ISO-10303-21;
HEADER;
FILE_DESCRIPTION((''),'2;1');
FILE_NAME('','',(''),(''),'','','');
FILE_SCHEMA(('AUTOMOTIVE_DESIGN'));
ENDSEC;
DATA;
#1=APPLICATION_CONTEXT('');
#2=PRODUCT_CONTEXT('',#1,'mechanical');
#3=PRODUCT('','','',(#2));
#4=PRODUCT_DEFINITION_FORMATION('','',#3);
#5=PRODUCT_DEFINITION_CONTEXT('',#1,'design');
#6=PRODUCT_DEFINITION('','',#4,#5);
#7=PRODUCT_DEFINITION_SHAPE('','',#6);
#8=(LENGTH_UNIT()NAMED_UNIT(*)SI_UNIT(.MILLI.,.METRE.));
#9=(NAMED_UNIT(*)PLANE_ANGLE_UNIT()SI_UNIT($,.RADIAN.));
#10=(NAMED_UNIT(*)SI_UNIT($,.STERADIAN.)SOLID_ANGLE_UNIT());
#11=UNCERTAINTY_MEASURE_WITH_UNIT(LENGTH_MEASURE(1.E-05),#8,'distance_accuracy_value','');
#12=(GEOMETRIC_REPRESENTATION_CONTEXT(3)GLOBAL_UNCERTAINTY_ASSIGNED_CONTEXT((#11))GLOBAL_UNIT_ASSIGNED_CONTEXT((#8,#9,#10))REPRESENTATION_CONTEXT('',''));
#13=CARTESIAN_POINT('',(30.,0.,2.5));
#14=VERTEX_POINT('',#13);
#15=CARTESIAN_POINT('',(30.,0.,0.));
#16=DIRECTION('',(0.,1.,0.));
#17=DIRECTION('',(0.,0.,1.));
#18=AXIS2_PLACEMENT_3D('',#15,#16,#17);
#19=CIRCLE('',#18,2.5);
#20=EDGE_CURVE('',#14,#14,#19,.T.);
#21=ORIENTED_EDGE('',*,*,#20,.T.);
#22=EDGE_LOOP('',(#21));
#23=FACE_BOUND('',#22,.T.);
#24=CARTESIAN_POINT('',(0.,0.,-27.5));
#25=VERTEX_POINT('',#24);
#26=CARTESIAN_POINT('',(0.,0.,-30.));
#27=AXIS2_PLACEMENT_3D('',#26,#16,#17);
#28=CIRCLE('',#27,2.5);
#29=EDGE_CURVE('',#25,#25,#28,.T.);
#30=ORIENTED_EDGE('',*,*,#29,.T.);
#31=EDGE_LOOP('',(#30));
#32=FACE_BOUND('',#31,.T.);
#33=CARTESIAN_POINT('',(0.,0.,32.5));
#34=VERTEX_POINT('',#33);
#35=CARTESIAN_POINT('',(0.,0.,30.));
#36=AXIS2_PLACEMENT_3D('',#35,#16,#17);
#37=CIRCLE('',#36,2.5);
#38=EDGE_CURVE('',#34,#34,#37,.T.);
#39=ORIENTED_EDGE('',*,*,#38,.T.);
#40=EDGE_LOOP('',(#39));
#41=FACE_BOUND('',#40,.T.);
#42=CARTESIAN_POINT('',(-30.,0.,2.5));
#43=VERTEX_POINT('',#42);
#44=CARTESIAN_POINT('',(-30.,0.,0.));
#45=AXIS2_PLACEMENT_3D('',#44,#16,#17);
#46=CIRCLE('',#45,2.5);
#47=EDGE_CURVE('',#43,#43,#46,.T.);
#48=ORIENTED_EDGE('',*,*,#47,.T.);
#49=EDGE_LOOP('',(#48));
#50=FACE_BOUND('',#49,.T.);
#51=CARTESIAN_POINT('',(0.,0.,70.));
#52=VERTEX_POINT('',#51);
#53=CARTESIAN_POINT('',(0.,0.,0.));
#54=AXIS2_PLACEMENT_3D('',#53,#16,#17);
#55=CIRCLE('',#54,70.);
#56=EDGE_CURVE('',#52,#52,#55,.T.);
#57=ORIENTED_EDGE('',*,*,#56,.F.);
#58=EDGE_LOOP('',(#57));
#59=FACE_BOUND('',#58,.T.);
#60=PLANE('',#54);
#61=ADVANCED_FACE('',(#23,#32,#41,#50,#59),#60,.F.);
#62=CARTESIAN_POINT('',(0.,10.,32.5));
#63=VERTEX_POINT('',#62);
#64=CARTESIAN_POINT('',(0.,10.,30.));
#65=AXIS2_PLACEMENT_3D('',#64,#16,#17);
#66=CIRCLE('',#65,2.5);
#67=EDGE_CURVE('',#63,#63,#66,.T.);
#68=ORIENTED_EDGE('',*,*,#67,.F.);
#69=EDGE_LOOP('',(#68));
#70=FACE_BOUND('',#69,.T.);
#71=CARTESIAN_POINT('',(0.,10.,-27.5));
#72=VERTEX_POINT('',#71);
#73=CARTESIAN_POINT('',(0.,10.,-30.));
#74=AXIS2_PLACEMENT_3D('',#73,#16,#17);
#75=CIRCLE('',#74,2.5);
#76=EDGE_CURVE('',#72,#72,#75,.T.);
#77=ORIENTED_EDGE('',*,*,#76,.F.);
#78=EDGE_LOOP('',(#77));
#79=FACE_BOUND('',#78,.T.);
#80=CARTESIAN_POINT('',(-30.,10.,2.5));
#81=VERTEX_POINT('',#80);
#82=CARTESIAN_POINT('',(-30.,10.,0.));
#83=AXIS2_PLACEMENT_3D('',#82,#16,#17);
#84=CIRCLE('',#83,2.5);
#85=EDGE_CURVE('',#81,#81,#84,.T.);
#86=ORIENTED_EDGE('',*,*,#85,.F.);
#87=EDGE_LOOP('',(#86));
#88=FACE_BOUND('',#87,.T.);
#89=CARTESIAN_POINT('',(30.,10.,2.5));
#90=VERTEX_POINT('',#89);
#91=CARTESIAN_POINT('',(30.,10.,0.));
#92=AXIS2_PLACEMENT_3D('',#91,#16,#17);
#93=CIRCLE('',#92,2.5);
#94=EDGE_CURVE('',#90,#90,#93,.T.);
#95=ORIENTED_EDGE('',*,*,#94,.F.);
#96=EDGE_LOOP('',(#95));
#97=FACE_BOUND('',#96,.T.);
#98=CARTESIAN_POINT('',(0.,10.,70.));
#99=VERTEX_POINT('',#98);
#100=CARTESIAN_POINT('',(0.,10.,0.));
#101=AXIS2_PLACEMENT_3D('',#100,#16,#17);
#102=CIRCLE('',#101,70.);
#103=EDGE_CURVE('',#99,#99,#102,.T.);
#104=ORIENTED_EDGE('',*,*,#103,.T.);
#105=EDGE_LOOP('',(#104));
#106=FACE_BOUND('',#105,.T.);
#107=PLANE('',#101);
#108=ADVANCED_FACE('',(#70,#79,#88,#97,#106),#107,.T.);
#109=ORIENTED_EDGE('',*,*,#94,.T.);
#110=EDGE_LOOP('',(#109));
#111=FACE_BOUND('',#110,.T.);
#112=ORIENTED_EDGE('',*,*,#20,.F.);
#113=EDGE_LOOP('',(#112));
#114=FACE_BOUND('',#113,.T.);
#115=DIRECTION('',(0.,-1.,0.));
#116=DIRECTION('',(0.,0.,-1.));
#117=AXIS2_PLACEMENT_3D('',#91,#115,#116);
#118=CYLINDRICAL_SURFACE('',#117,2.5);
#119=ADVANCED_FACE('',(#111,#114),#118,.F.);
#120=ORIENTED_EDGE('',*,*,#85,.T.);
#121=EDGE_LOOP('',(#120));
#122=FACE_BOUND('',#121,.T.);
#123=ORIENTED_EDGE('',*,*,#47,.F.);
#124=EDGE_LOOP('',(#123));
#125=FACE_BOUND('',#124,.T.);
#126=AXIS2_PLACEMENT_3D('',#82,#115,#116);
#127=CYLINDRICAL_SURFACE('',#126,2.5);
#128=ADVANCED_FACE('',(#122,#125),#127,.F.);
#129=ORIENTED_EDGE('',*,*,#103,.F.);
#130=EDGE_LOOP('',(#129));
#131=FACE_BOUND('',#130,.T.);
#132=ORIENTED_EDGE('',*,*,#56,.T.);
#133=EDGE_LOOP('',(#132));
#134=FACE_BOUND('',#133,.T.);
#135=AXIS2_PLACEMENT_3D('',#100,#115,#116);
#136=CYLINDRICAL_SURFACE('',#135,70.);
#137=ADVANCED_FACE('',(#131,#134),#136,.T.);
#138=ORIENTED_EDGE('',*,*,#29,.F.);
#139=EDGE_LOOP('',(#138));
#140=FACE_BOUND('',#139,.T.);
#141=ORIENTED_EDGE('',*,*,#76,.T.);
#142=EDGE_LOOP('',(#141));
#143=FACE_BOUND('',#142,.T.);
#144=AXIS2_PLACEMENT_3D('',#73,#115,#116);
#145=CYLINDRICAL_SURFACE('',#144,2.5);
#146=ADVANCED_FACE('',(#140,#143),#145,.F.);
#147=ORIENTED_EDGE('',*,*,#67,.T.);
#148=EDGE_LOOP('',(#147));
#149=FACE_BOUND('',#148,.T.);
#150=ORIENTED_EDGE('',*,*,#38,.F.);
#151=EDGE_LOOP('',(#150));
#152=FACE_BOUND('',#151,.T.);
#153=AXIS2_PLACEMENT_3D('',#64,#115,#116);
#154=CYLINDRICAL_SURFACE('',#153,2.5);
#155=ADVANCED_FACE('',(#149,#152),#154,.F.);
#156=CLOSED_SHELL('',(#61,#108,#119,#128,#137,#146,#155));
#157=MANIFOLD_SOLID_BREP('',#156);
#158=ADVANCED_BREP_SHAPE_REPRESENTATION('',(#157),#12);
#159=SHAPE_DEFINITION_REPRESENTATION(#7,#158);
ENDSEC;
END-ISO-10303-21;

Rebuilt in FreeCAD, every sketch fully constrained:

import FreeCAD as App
import Part
import Sketcher
Q = App.Units.Quantity

doc = App.newDocument("Part")
params = doc.addObject("Spreadsheet::Sheet", "Params")
for row, (alias, value) in enumerate([
    ("sketch1_diameter", "140 mm"),
    ("sketch1_diameter2", "5 mm"),
    ("pad1_length", "10 mm"),
], start=1):
    params.set(f"A{row}", alias)
    params.set(f"B{row}", "=" + value)
    params.setAlias(f"B{row}", alias)

body = doc.addObject("PartDesign::Body", "Body")

sketch1 = body.newObject("Sketcher::SketchObject", "Sketch")
sketch1.AttachmentSupport = (doc.getObject("XZ_Plane"), [""])
sketch1.MapMode = "FlatFace"
sketch1.addGeometry(Part.Circle(App.Vector(0, 0, 0), App.Vector(0, 0, 1), 70), False)
sketch1.addGeometry(Part.Circle(App.Vector(0, -30, 0), App.Vector(0, 0, 1), 2.5), False)
sketch1.addGeometry(Part.Circle(App.Vector(-30, 0, 0), App.Vector(0, 0, 1), 2.5), False)
sketch1.addGeometry(Part.Circle(App.Vector(30, 0, 0), App.Vector(0, 0, 1), 2.5), False)
sketch1.addGeometry(Part.Circle(App.Vector(0, 30, 0), App.Vector(0, 0, 1), 2.5), False)
sketch1.addConstraint(Sketcher.Constraint("Coincident", 0, 3, -1, 1))
sketch1.addConstraint(Sketcher.Constraint("Equal", 1, 2))
sketch1.addConstraint(Sketcher.Constraint("Equal", 2, 3))
sketch1.addConstraint(Sketcher.Constraint("Equal", 3, 4))
sketch1.addConstraint(Sketcher.Constraint("Symmetric", 2, 3, 3, 3, -1, 1))
sketch1.addConstraint(Sketcher.Constraint("Symmetric", 1, 3, 4, 3, -1, 1))
sketch1.addConstraint(Sketcher.Constraint("PointOnObject", 1, 3, -2))
sketch1.addConstraint(Sketcher.Constraint("PointOnObject", 2, 3, -1))
sketch1.addConstraint(Sketcher.Constraint("Diameter", 0, Q("140 mm")))
sketch1.addConstraint(Sketcher.Constraint("Diameter", 1, Q("5 mm")))
sketch1.addConstraint(Sketcher.Constraint("DistanceY", 1, 3, -1, 1, Q("30 mm")))
sketch1.addConstraint(Sketcher.Constraint("DistanceX", 2, 3, -1, 1, Q("30 mm")))
sketch1.setExpression("Constraints[8]", "Params.sketch1_diameter")
sketch1.setExpression("Constraints[9]", "Params.sketch1_diameter2")
pad1 = body.newObject("PartDesign::Pad", "Pad")
pad1.Profile = sketch1
pad1.setExpression("Length", "Params.pad1_length")
pad1.Reversed = True

doc.recompute()
